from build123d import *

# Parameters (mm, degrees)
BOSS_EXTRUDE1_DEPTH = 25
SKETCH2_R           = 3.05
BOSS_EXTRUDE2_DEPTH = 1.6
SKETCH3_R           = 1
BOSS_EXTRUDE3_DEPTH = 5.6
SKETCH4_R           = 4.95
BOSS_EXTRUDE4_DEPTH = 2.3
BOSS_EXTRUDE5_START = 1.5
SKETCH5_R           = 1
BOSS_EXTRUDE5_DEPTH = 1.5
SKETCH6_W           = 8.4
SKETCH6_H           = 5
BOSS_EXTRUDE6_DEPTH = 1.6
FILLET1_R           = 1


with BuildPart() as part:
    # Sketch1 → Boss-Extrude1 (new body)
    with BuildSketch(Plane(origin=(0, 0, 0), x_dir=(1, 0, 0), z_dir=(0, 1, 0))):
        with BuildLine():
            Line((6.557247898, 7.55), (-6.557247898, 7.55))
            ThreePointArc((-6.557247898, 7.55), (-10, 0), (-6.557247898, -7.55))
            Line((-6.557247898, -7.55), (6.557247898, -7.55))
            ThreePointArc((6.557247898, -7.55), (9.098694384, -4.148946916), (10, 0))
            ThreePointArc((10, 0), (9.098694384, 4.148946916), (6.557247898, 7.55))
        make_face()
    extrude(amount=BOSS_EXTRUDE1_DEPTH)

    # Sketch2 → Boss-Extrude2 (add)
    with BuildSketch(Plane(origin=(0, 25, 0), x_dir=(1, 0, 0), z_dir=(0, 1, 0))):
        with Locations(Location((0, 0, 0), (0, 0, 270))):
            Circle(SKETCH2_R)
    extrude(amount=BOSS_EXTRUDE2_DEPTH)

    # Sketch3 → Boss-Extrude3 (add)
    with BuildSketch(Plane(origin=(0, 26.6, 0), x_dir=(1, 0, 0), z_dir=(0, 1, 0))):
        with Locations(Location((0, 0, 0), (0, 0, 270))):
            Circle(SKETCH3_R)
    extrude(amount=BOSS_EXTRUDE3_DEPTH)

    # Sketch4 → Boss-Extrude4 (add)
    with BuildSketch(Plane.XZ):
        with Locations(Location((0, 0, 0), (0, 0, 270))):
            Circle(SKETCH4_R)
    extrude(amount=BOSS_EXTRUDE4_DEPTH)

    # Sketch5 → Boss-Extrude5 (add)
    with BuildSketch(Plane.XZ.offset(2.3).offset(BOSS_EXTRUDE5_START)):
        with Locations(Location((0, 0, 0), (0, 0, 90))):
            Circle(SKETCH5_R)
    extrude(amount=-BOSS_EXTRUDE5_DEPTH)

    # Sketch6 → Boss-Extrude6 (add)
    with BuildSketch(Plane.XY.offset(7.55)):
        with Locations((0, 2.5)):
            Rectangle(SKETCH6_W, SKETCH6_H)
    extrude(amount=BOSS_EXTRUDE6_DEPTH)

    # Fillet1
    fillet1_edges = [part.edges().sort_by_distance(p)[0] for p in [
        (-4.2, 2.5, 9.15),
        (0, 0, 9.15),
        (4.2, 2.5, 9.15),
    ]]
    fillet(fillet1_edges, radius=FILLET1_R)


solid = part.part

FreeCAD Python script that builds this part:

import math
import FreeCAD as App
import Part
import Sketcher
from FreeCAD import Vector
Q = App.Units.Quantity


def edges_at(feature, points):
    """Names of the edges that pass closest to the given points."""
    edges = feature.Shape.Edges
    near = lambda p: min(range(len(edges)), key=lambda i: edges[i].distToShape(Part.Vertex(*p))[0])
    return sorted({f"Edge{near(p) + 1}" for p in points})

doc = App.newDocument("Part")
params = doc.addObject("Spreadsheet::Sheet", "Params")
for row, (alias, value) in enumerate([
    ("sketch1_radius", "10 mm"),
    ("pad1_length", "25 mm"),
    ("sketch2_diameter", "6.1 mm"),
    ("pad2_length", "1.6 mm"),
    ("sketch3_diameter", "2 mm"),
    ("pad3_length", "5.6 mm"),
    ("sketch4_diameter", "9.9 mm"),
    ("pad4_length", "2.3 mm"),
    ("sketch5_diameter", "2 mm"),
    ("pad5_length", "1.5 mm"),
    ("sketch6_height", "5 mm"),
    ("sketch6_width", "8.4 mm"),
    ("pad6_length", "1.6 mm"),
    ("fillet_radius", "1 mm"),
], start=1):
    params.set(f"A{row}", alias)
    params.set(f"B{row}", "=" + value)
    params.setAlias(f"B{row}", alias)

body = doc.addObject("PartDesign::Body", "Body")

sketch1 = doc.addObject("Sketcher::SketchObject", "Sketch")
body.addObject(sketch1)
sketch1.AttachmentSupport = (doc.XZ_Plane, [""])
sketch1.MapMode = "FlatFace"
sketch1.addGeometry(Part.LineSegment(Vector(7, -8, 0), Vector(-7, -8, 0)), False)
sketch1.addGeometry(Part.ArcOfCircle(Part.Circle(Vector(0, 0, 0), Vector(0, 0, 1), 10), math.radians(131), math.radians(229)), False)
sketch1.addGeometry(Part.LineSegment(Vector(-7, 8, 0), Vector(7, 8, 0)), False)
sketch1.addGeometry(Part.ArcOfCircle(Part.Circle(Vector(0, 0, 0), Vector(0, 0, 1), 10), math.radians(0), math.radians(49)), False)
sketch1.addGeometry(Part.ArcOfCircle(Part.Circle(Vector(0, 0, 0), Vector(0, 0, 1), 10), math.radians(-49), math.radians(0)), False)
sketch1.addConstraint(Sketcher.Constraint("Coincident", 0, 2, 1, 2))
sketch1.addConstraint(Sketcher.Constraint("Coincident", 1, 1, 2, 1))
sketch1.addConstraint(Sketcher.Constraint("Coincident", 2, 2, 3, 2))
sketch1.addConstraint(Sketcher.Constraint("Tangent", 3, 1, 4, 2))
sketch1.addConstraint(Sketcher.Constraint("Coincident", 4, 1, 0, 1))
sketch1.addConstraint(Sketcher.Constraint("Horizontal", 0))
sketch1.addConstraint(Sketcher.Constraint("Horizontal", 2))
sketch1.addConstraint(Sketcher.Constraint("Coincident", 1, 3, -1, 1))
sketch1.addConstraint(Sketcher.Constraint("Coincident", 3, 3, -1, 1))
sketch1.addConstraint(Sketcher.Constraint("Equal", 1, 3))
sketch1.addConstraint(Sketcher.Constraint("Equal", 3, 4))
sketch1.addConstraint(Sketcher.Constraint("PointOnObject", 3, 1, -1))
sketch1.addConstraint(Sketcher.Constraint("Vertical", 0, 2, 1, 1))
sketch1.addConstraint(Sketcher.Constraint("Radius", 1, Q("10 mm")))
sketch1.addConstraint(Sketcher.Constraint("DistanceY", 0, 2, 1, 1, Q("15.1 mm")))
sketch1.setExpression("Constraints[13]", "Params.sketch1_radius")
pad1 = doc.addObject("PartDesign::Pad", "Pad")
body.addObject(pad1)
pad1.Profile = sketch1
pad1.setExpression("Length", "Params.pad1_length")
pad1.Reversed = True

sketch2 = doc.addObject("Sketcher::SketchObject", "Sketch001")
body.addObject(sketch2)
sketch2.AttachmentSupport = (doc.XZ_Plane, [""])
sketch2.MapMode = "FlatFace"
sketch2.AttachmentOffset = App.Placement(Vector(0, 0, -25), App.Rotation())
sketch2.addGeometry(Part.Circle(Vector(0, 0, 0), Vector(0, 0, 1), 3), False)
sketch2.addConstraint(Sketcher.Constraint("Coincident", 0, 3, -1, 1))
sketch2.addConstraint(Sketcher.Constraint("Diameter", 0, Q("6.1 mm")))
sketch2.setExpression("Constraints[1]", "Params.sketch2_diameter")
pad2 = doc.addObject("PartDesign::Pad", "Pad001")
body.addObject(pad2)
pad2.Profile = sketch2
pad2.setExpression("Length", "Params.pad2_length")
pad2.Reversed = True

sketch3 = doc.addObject("Sketcher::SketchObject", "Sketch002")
body.addObject(sketch3)
sketch3.AttachmentSupport = (doc.XZ_Plane, [""])
sketch3.MapMode = "FlatFace"
sketch3.AttachmentOffset = App.Placement(Vector(0, 0, -26.6), App.Rotation())
sketch3.addGeometry(Part.Circle(Vector(0, 0, 0), Vector(0, 0, 1), 1), False)
sketch3.addConstraint(Sketcher.Constraint("Coincident", 0, 3, -1, 1))
sketch3.addConstraint(Sketcher.Constraint("Diameter", 0, Q("2 mm")))
sketch3.setExpression("Constraints[1]", "Params.sketch3_diameter")
pad3 = doc.addObject("PartDesign::Pad", "Pad002")
body.addObject(pad3)
pad3.Profile = sketch3
pad3.setExpression("Length", "Params.pad3_length")
pad3.Reversed = True

sketch4 = doc.addObject("Sketcher::SketchObject", "Sketch003")
body.addObject(sketch4)
sketch4.AttachmentSupport = (doc.XZ_Plane, [""])
sketch4.MapMode = "FlatFace"
sketch4.addGeometry(Part.Circle(Vector(0, 0, 0), Vector(0, 0, 1), 5), False)
sketch4.addConstraint(Sketcher.Constraint("Coincident", 0, 3, -1, 1))
sketch4.addConstraint(Sketcher.Constraint("Diameter", 0, Q("9.9 mm")))
sketch4.setExpression("Constraints[1]", "Params.sketch4_diameter")
pad4 = doc.addObject("PartDesign::Pad", "Pad003")
body.addObject(pad4)
pad4.Profile = sketch4
pad4.setExpression("Length", "Params.pad4_length")

sketch5 = doc.addObject("Sketcher::SketchObject", "Sketch004")
body.addObject(sketch5)
sketch5.AttachmentSupport = (doc.XZ_Plane, [""])
sketch5.MapMode = "FlatFace"
sketch5.AttachmentOffset = App.Placement(Vector(0, 0, 3.8), App.Rotation())
sketch5.addGeometry(Part.Circle(Vector(0, 0, 0), Vector(0, 0, 1), 1), False)
sketch5.addConstraint(Sketcher.Constraint("Coincident", 0, 3, -1, 1))
sketch5.addConstraint(Sketcher.Constraint("Diameter", 0, Q("2 mm")))
sketch5.setExpression("Constraints[1]", "Params.sketch5_diameter")
pad5 = doc.addObject("PartDesign::Pad", "Pad004")
body.addObject(pad5)
pad5.Profile = sketch5
pad5.setExpression("Length", "Params.pad5_length")
pad5.Reversed = True

sketch6 = doc.addObject("Sketcher::SketchObject", "Sketch005")
body.addObject(sketch6)
sketch6.AttachmentSupport = (doc.XY_Plane, [""])
sketch6.MapMode = "FlatFace"
sketch6.AttachmentOffset = App.Placement(Vector(0, 0, 7.55), App.Rotation())
sketch6.addGeometry(Part.LineSegment(Vector(-4, 5, 0), Vector(-4, 0, 0)), False)
sketch6.addGeometry(Part.LineSegment(Vector(-4, 0, 0), Vector(4, 0, 0)), False)
sketch6.addGeometry(Part.LineSegment(Vector(4, 0, 0), Vector(4, 5, 0)), False)
sketch6.addGeometry(Part.LineSegment(Vector(4, 5, 0), Vector(-4, 5, 0)), False)
sketch6.addConstraint(Sketcher.Constraint("Coincident", 0, 2, 1, 1))
sketch6.addConstraint(Sketcher.Constraint("Coincident", 1, 2, 2, 1))
sketch6.addConstraint(Sketcher.Constraint("Coincident", 2, 2, 3, 1))
sketch6.addConstraint(Sketcher.Constraint("Coincident", 3, 2, 0, 1))
sketch6.addConstraint(Sketcher.Constraint("Vertical", 0))
sketch6.addConstraint(Sketcher.Constraint("Horizontal", 1))
sketch6.addConstraint(Sketcher.Constraint("Vertical", 2))
sketch6.addConstraint(Sketcher.Constraint("Horizontal", 3))
sketch6.addConstraint(Sketcher.Constraint("Symmetric", 0, 2, 1, 2, -1, 1))
sketch6.addConstraint(Sketcher.Constraint("DistanceY", 0, 2, 0, 1, Q("5 mm")))
sketch6.addConstraint(Sketcher.Constraint("DistanceX", 1, 1, 1, 2, Q("8.4 mm")))
sketch6.setExpression("Constraints[9]", "Params.sketch6_height")
sketch6.setExpression("Constraints[10]", "Params.sketch6_width")
pad6 = doc.addObject("PartDesign::Pad", "Pad005")
body.addObject(pad6)
pad6.Profile = sketch6
pad6.setExpression("Length", "Params.pad6_length")
doc.recompute()

fillet = doc.addObject("PartDesign::Fillet", "Fillet")
body.addObject(fillet)
fillet.Base = (pad6, edges_at(pad6, [(-4.2, 2.5, 9.15), (0, 0, 9.15), (4.2, 2.5, 9.15)]))
fillet.setExpression("Radius", "Params.fillet_radius")

doc.recompute()
